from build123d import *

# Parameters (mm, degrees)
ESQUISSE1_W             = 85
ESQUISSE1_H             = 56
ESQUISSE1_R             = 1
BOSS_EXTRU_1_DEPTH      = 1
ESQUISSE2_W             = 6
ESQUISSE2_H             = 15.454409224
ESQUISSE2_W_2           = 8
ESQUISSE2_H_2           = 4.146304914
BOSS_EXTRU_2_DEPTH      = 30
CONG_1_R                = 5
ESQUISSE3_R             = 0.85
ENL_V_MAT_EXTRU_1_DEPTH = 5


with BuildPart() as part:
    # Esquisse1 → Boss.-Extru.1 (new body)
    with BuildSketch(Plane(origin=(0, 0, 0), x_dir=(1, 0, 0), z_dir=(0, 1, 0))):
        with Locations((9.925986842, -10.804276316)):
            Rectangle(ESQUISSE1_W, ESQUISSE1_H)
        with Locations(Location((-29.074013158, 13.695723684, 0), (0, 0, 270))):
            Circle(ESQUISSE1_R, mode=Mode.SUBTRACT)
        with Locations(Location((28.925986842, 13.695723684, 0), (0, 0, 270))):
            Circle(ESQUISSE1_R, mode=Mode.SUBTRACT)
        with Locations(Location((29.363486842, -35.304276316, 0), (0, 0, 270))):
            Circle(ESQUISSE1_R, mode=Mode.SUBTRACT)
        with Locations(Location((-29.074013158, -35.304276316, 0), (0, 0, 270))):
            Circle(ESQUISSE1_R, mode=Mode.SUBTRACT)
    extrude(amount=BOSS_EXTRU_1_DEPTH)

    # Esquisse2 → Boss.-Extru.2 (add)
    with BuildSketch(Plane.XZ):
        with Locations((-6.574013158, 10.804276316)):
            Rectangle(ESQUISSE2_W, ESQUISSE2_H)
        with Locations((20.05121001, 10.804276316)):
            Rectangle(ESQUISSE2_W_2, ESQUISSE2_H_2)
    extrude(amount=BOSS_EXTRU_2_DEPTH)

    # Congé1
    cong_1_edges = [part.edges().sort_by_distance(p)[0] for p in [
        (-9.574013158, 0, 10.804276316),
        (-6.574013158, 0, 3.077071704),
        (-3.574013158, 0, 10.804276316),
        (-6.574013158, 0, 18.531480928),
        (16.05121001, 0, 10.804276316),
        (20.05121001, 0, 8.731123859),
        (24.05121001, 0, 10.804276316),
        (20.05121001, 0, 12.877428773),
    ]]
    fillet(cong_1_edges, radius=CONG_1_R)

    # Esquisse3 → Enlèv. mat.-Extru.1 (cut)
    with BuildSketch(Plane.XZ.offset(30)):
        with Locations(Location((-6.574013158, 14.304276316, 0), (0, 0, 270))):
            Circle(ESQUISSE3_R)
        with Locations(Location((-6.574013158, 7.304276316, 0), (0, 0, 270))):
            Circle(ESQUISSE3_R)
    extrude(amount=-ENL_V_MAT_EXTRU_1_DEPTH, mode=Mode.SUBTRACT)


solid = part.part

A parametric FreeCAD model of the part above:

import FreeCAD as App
import Part
import Sketcher
from FreeCAD import Vector
Q = App.Units.Quantity


def edges_at(feature, points):
    """Names of the edges that pass closest to the given points."""
    edges = feature.Shape.Edges
    near = lambda p: min(range(len(edges)), key=lambda i: edges[i].distToShape(Part.Vertex(*p))[0])
    return sorted({f"Edge{near(p) + 1}" for p in points})

doc = App.newDocument("Part")
params = doc.addObject("Spreadsheet::Sheet", "Params")
for row, (alias, value) in enumerate([
    ("sketch1_diameter", "2 mm"),
    ("sketch1_width", "85 mm"),
    ("sketch1_height", "56 mm"),
    ("pad1_length", "1 mm"),
    ("sketch2_width", "6 mm"),
    ("sketch2_width2", "8 mm"),
    ("pad2_length", "30 mm"),
    ("fillet_radius", "5 mm"),
    ("sketch3_diameter", "1.7 mm"),
    ("pocket1_length", "5 mm"),
], start=1):
    params.set(f"A{row}", alias)
    params.set(f"B{row}", "=" + value)
    params.setAlias(f"B{row}", alias)

body = doc.addObject("PartDesign::Body", "Body")

# Sketch on XZ plane
sketch1 = body.newObject("Sketcher::SketchObject", "Sketch")
sketch1.AttachmentSupport = (doc.getObject("XZ_Plane"), [""])
sketch1.MapMode = "FlatFace"
sketch1.addGeometry(Part.LineSegment(Vector(-32.6, -17.2, 0), Vector(-32.6, 38.8, 0)), False)
sketch1.addGeometry(Part.LineSegment(Vector(-32.6, 38.8, 0), Vector(52.4, 38.8, 0)), False)
sketch1.addGeometry(Part.LineSegment(Vector(52.4, 38.8, 0), Vector(52.4, -17.2, 0)), False)
sketch1.addGeometry(Part.LineSegment(Vector(52.4, -17.2, 0), Vector(-32.6, -17.2, 0)), False)
sketch1.addGeometry(Part.Circle(Vector(-29.1, 35.3, 0), Vector(0, 0, 1), 1), False)
sketch1.addGeometry(Part.Circle(Vector(29.4, 35.3, 0), Vector(0, 0, 1), 1), False)
sketch1.addGeometry(Part.Circle(Vector(-29.1, -13.7, 0), Vector(0, 0, 1), 1), False)
sketch1.addGeometry(Part.Circle(Vector(28.9, -13.7, 0), Vector(0, 0, 1), 1), False)
sketch1.addConstraint(Sketcher.Constraint("Coincident", 0, 2, 1, 1))
sketch1.addConstraint(Sketcher.Constraint("Coincident", 1, 2, 2, 1))
sketch1.addConstraint(Sketcher.Constraint("Coincident", 2, 2, 3, 1))
sketch1.addConstraint(Sketcher.Constraint("Coincident", 3, 2, 0, 1))
sketch1.addConstraint(Sketcher.Constraint("Vertical", 0))
sketch1.addConstraint(Sketcher.Constraint("Horizontal", 1))
sketch1.addConstraint(Sketcher.Constraint("Vertical", 2))
sketch1.addConstraint(Sketcher.Constraint("Horizontal", 3))
sketch1.addConstraint(Sketcher.Constraint("Equal", 4, 5))
sketch1.addConstraint(Sketcher.Constraint("Equal", 5, 6))
sketch1.addConstraint(Sketcher.Constraint("Equal", 6, 7))
sketch1.addConstraint(Sketcher.Constraint("Horizontal", 4, 3, 5, 3))
sketch1.addConstraint(Sketcher.Constraint("Horizontal", 6, 3, 7, 3))
sketch1.addConstraint(Sketcher.Constraint("Vertical", 4, 3, 6, 3))
sketch1.addConstraint(Sketcher.Constraint("Diameter", 4, Q("2 mm")))
sketch1.addConstraint(Sketcher.Constraint("DistanceX", 1, 1, 1, 2, Q("85 mm")))
sketch1.addConstraint(Sketcher.Constraint("DistanceY", 0, 1, 0, 2, Q("56 mm")))
sketch1.addConstraint(Sketcher.Constraint("DistanceY", 6, 3, 4, 3, Q("49 mm")))
sketch1.addConstraint(Sketcher.Constraint("DistanceX", 6, 3, 7, 3, Q("58 mm")))
sketch1.addConstraint(Sketcher.Constraint("DistanceX", 0, 2, 4, 3, Q("3.5 mm")))
sketch1.addConstraint(Sketcher.Constraint("DistanceY", 4, 3, 0, 2, Q("3.5 mm")))
sketch1.addConstraint(Sketcher.Constraint("DistanceX", 4, 3, 5, 3, Q("58.4375 mm")))
sketch1.addConstraint(Sketcher.Constraint("DistanceX", 4, 3, -1, 1, Q("29.074013 mm")))
sketch1.addConstraint(Sketcher.Constraint("DistanceY", -1, 1, 4, 3, Q("35.304276 mm")))
sketch1.setExpression("Constraints[14]", "Params.sketch1_diameter")
sketch1.setExpression("Constraints[15]", "Params.sketch1_width")
sketch1.setExpression("Constraints[16]", "Params.sketch1_height")
pad1 = body.newObject("PartDesign::Pad", "Pad")
pad1.Profile = sketch1
pad1.setExpression("Length", "Params.pad1_length")
pad1.Reversed = True

# Sketch on XZ plane
sketch2 = body.newObject("Sketcher::SketchObject", "Sketch001")
sketch2.AttachmentSupport = (doc.getObject("XZ_Plane"), [""])
sketch2.MapMode = "FlatFace"
sketch2.addGeometry(Part.LineSegment(Vector(-9.6, 18.5, 0), Vector(-9.6, 3.1, 0)), False)
sketch2.addGeometry(Part.LineSegment(Vector(-9.6, 3.1, 0), Vector(-3.6, 3.1, 0)), False)
sketch2.addGeometry(Part.LineSegment(Vector(-3.6, 3.1, 0), Vector(-3.6, 18.5, 0)), False)
sketch2.addGeometry(Part.LineSegment(Vector(-3.6, 18.5, 0), Vector(-9.6, 18.5, 0)), False)
sketch2.addGeometry(Part.LineSegment(Vector(16.1, 12.9, 0), Vector(16.1, 8.7, 0)), False)
sketch2.addGeometry(Part.LineSegment(Vector(16.1, 8.7, 0), Vector(24.1, 8.7, 0)), False)
sketch2.addGeometry(Part.LineSegment(Vector(24.1, 8.7, 0), Vector(24.1, 12.9, 0)), False)
sketch2.addGeometry(Part.LineSegment(Vector(24.1, 12.9, 0), Vector(16.1, 12.9, 0)), False)
sketch2.addConstraint(Sketcher.Constraint("Coincident", 0, 2, 1, 1))
sketch2.addConstraint(Sketcher.Constraint("Coincident", 1, 2, 2, 1))
sketch2.addConstraint(Sketcher.Constraint("Coincident", 2, 2, 3, 1))
sketch2.addConstraint(Sketcher.Constraint("Coincident", 3, 2, 0, 1))
sketch2.addConstraint(Sketcher.Constraint("Coincident", 4, 2, 5, 1))
sketch2.addConstraint(Sketcher.Constraint("Coincident", 5, 2, 6, 1))
sketch2.addConstraint(Sketcher.Constraint("Coincident", 6, 2, 7, 1))
sketch2.addConstraint(Sketcher.Constraint("Coincident", 7, 2, 4, 1))
sketch2.addConstraint(Sketcher.Constraint("Vertical", 0))
sketch2.addConstraint(Sketcher.Constraint("Horizontal", 1))
sketch2.addConstraint(Sketcher.Constraint("Vertical", 2))
sketch2.addConstraint(Sketcher.Constraint("Horizontal", 3))
sketch2.addConstraint(Sketcher.Constraint("Vertical", 4))
sketch2.addConstraint(Sketcher.Constraint("Horizontal", 5))
sketch2.addConstraint(Sketcher.Constraint("Vertical", 6))
sketch2.addConstraint(Sketcher.Constraint("Horizontal", 7))
sketch2.addConstraint(Sketcher.Constraint("DistanceX", 1, 1, 1, 2, Q("6 mm")))
sketch2.addConstraint(Sketcher.Constraint("DistanceX", 5, 1, 5, 2, Q("8 mm")))
sketch2.addConstraint(Sketcher.Constraint("DistanceY", 0, 2, 0, 1, Q("15.454409 mm")))
sketch2.addConstraint(Sketcher.Constraint("DistanceY", 4, 2, 4, 1, Q("4.146305 mm")))
sketch2.addConstraint(Sketcher.Constraint("DistanceY", -1, 1, 0, 2, Q("3.077072 mm")))
sketch2.addConstraint(Sketcher.Constraint("DistanceX", -1, 1, 4, 2, Q("16.05121 mm")))
sketch2.addConstraint(Sketcher.Constraint("DistanceY", -1, 1, 6, 2, Q("12.877429 mm")))
sketch2.addConstraint(Sketcher.Constraint("DistanceX", 0, 2, -1, 1, Q("9.574013 mm")))
sketch2.setExpression("Constraints[16]", "Params.sketch2_width")
sketch2.setExpression("Constraints[17]", "Params.sketch2_width2")
pad2 = body.newObject("PartDesign::Pad", "Pad001")
pad2.Profile = sketch2
pad2.setExpression("Length", "Params.pad2_length")
doc.recompute()

fillet = body.newObject("PartDesign::Fillet", "Fillet")
fillet.Base = (pad2, edges_at(pad2, [
    (-9.574, 0, 10.804),
    (-6.574, 0, 3.077),
    (-3.574, 0, 10.804),
    (-6.574, 0, 18.531),
    (16.051, 0, 10.804),
    (20.051, 0, 8.731),
    (24.051, 0, 10.804),
    (20.051, 0, 12.877),
]))
fillet.setExpression("Radius", "Params.fillet_radius")

# Sketch on XZ plane
sketch3 = body.newObject("Sketcher::SketchObject", "Sketch002")
sketch3.AttachmentSupport = (doc.getObject("XZ_Plane"), [""])
sketch3.MapMode = "FlatFace"
sketch3.AttachmentOffset = App.Placement(Vector(0, 0, 30), App.Rotation())
sketch3.addGeometry(Part.Circle(Vector(-6.6, 14.3, 0), Vector(0, 0, 1), 0.8), False)
sketch3.addGeometry(Part.Circle(Vector(-6.6, 7.3, 0), Vector(0, 0, 1), 0.8), False)
sketch3.addConstraint(Sketcher.Constraint("Equal", 0, 1))
sketch3.addConstraint(Sketcher.Constraint("Vertical", 0, 3, 1, 3))
sketch3.addConstraint(Sketcher.Constraint("Diameter", 0, Q("1.7 mm")))
sketch3.addConstraint(Sketcher.Constraint("DistanceY", 1, 3, 0, 3, Q("7 mm")))
sketch3.addConstraint(Sketcher.Constraint("DistanceX", 0, 3, -1, 1, Q("6.574013 mm")))
sketch3.addConstraint(Sketcher.Constraint("DistanceY", -1, 1, 0, 3, Q("14.304276 mm")))
sketch3.setExpression("Constraints[2]", "Params.sketch3_diameter")
pocket1 = body.newObject("PartDesign::Pocket", "Pocket")
pocket1.Profile = sketch3
pocket1.setExpression("Length", "Params.pocket1_length")

doc.recompute()
